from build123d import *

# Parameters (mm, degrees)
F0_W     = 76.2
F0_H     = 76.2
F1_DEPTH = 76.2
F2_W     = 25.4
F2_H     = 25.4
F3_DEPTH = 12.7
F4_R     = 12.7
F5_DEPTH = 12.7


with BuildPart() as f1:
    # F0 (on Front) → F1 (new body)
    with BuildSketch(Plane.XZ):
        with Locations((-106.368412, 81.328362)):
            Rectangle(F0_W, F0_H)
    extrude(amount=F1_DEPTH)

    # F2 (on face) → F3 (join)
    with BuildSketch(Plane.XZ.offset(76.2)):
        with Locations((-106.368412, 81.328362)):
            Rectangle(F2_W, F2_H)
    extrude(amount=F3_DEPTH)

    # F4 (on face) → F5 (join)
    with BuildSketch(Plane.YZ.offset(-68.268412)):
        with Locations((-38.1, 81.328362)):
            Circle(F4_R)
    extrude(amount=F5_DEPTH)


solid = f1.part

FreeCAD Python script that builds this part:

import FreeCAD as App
import Part
import Sketcher
Q = App.Units.Quantity


def add_polygon(sketch, points):
    """Adds a closed chain of lines whose ends are joined by coincident constraints."""
    first, n = sketch.GeometryCount, len(points)
    for a, b in zip(points, points[1:] + points[:1]):
        sketch.addGeometry(Part.LineSegment(App.Vector(*a, 0), App.Vector(*b, 0)), False)
    for i in range(n):
        sketch.addConstraint(Sketcher.Constraint("Coincident", first + i, 2, first + (i + 1) % n, 1))

doc = App.newDocument("Part")
body = doc.addObject("PartDesign::Body", "Body")

sketch1 = body.newObject("Sketcher::SketchObject", "Sketch")
sketch1.AttachmentSupport = (doc.getObject("XZ_Plane"), [""])
sketch1.MapMode = "FlatFace"
add_polygon(sketch1, [(-144, 119), (-144, 43), (-68, 43), (-68, 119)])
sketch1.addConstraint(Sketcher.Constraint("Vertical", 0))
sketch1.addConstraint(Sketcher.Constraint("Horizontal", 1))
sketch1.addConstraint(Sketcher.Constraint("Vertical", 2))
sketch1.addConstraint(Sketcher.Constraint("Horizontal", 3))
sketch1.addConstraint(Sketcher.Constraint("Equal", 3, 0))
sketch1.addConstraint(Sketcher.Constraint("DistanceX", 1, 1, 1, 2, Q("3 in")))
sketch1.addConstraint(Sketcher.Constraint("DistanceX", 0, 2, -1, 1, 144.468412))
sketch1.addConstraint(Sketcher.Constraint("DistanceY", -1, 1, 0, 2, 43.228362))
pad1 = body.newObject("PartDesign::Pad", "Pad")
pad1.Profile = sketch1
pad1.Length = Q("3 in")

sketch2 = body.newObject("Sketcher::SketchObject", "Sketch001")
sketch2.AttachmentSupport = (doc.getObject("XZ_Plane"), [""])
sketch2.MapMode = "FlatFace"
sketch2.AttachmentOffset = App.Placement(App.Vector(0, 0, 3 * 25.4), App.Rotation())
add_polygon(sketch2, [(-119, 94), (-119, 69), (-94, 69), (-94, 94)])
sketch2.addConstraint(Sketcher.Constraint("Vertical", 0))
sketch2.addConstraint(Sketcher.Constraint("Horizontal", 1))
sketch2.addConstraint(Sketcher.Constraint("Vertical", 2))
sketch2.addConstraint(Sketcher.Constraint("Horizontal", 3))
sketch2.addConstraint(Sketcher.Constraint("Equal", 3, 0))
sketch2.addConstraint(Sketcher.Constraint("DistanceX", 1, 1, 1, 2, Q("1 in")))
sketch2.addConstraint(Sketcher.Constraint("DistanceX", 0, 2, -1, 1, 119.068412))
sketch2.addConstraint(Sketcher.Constraint("DistanceY", -1, 1, 0, 2, 68.628362))
pad2 = body.newObject("PartDesign::Pad", "Pad001")
pad2.Profile = sketch2
pad2.Length = Q("0.5 in")

sketch3 = body.newObject("Sketcher::SketchObject", "Sketch002")
sketch3.AttachmentSupport = (doc.getObject("YZ_Plane"), [""])
sketch3.MapMode = "FlatFace"
sketch3.AttachmentOffset = App.Placement(App.Vector(0, 0, -68.268412), App.Rotation())
sketch3.addGeometry(Part.Circle(App.Vector(-38, 81, 0), App.Vector(0, 0, 1), 13), False)
sketch3.addConstraint(Sketcher.Constraint("Diameter", 0, Q("1 in")))
sketch3.addConstraint(Sketcher.Constraint("DistanceX", 0, 3, -1, 1, Q("1.5 in")))
sketch3.addConstraint(Sketcher.Constraint("DistanceY", -1, 1, 0, 3, 81.328362))
pad3 = body.newObject("PartDesign::Pad", "Pad002")
pad3.Profile = sketch3
pad3.Length = Q("0.5 in")

doc.recompute()
